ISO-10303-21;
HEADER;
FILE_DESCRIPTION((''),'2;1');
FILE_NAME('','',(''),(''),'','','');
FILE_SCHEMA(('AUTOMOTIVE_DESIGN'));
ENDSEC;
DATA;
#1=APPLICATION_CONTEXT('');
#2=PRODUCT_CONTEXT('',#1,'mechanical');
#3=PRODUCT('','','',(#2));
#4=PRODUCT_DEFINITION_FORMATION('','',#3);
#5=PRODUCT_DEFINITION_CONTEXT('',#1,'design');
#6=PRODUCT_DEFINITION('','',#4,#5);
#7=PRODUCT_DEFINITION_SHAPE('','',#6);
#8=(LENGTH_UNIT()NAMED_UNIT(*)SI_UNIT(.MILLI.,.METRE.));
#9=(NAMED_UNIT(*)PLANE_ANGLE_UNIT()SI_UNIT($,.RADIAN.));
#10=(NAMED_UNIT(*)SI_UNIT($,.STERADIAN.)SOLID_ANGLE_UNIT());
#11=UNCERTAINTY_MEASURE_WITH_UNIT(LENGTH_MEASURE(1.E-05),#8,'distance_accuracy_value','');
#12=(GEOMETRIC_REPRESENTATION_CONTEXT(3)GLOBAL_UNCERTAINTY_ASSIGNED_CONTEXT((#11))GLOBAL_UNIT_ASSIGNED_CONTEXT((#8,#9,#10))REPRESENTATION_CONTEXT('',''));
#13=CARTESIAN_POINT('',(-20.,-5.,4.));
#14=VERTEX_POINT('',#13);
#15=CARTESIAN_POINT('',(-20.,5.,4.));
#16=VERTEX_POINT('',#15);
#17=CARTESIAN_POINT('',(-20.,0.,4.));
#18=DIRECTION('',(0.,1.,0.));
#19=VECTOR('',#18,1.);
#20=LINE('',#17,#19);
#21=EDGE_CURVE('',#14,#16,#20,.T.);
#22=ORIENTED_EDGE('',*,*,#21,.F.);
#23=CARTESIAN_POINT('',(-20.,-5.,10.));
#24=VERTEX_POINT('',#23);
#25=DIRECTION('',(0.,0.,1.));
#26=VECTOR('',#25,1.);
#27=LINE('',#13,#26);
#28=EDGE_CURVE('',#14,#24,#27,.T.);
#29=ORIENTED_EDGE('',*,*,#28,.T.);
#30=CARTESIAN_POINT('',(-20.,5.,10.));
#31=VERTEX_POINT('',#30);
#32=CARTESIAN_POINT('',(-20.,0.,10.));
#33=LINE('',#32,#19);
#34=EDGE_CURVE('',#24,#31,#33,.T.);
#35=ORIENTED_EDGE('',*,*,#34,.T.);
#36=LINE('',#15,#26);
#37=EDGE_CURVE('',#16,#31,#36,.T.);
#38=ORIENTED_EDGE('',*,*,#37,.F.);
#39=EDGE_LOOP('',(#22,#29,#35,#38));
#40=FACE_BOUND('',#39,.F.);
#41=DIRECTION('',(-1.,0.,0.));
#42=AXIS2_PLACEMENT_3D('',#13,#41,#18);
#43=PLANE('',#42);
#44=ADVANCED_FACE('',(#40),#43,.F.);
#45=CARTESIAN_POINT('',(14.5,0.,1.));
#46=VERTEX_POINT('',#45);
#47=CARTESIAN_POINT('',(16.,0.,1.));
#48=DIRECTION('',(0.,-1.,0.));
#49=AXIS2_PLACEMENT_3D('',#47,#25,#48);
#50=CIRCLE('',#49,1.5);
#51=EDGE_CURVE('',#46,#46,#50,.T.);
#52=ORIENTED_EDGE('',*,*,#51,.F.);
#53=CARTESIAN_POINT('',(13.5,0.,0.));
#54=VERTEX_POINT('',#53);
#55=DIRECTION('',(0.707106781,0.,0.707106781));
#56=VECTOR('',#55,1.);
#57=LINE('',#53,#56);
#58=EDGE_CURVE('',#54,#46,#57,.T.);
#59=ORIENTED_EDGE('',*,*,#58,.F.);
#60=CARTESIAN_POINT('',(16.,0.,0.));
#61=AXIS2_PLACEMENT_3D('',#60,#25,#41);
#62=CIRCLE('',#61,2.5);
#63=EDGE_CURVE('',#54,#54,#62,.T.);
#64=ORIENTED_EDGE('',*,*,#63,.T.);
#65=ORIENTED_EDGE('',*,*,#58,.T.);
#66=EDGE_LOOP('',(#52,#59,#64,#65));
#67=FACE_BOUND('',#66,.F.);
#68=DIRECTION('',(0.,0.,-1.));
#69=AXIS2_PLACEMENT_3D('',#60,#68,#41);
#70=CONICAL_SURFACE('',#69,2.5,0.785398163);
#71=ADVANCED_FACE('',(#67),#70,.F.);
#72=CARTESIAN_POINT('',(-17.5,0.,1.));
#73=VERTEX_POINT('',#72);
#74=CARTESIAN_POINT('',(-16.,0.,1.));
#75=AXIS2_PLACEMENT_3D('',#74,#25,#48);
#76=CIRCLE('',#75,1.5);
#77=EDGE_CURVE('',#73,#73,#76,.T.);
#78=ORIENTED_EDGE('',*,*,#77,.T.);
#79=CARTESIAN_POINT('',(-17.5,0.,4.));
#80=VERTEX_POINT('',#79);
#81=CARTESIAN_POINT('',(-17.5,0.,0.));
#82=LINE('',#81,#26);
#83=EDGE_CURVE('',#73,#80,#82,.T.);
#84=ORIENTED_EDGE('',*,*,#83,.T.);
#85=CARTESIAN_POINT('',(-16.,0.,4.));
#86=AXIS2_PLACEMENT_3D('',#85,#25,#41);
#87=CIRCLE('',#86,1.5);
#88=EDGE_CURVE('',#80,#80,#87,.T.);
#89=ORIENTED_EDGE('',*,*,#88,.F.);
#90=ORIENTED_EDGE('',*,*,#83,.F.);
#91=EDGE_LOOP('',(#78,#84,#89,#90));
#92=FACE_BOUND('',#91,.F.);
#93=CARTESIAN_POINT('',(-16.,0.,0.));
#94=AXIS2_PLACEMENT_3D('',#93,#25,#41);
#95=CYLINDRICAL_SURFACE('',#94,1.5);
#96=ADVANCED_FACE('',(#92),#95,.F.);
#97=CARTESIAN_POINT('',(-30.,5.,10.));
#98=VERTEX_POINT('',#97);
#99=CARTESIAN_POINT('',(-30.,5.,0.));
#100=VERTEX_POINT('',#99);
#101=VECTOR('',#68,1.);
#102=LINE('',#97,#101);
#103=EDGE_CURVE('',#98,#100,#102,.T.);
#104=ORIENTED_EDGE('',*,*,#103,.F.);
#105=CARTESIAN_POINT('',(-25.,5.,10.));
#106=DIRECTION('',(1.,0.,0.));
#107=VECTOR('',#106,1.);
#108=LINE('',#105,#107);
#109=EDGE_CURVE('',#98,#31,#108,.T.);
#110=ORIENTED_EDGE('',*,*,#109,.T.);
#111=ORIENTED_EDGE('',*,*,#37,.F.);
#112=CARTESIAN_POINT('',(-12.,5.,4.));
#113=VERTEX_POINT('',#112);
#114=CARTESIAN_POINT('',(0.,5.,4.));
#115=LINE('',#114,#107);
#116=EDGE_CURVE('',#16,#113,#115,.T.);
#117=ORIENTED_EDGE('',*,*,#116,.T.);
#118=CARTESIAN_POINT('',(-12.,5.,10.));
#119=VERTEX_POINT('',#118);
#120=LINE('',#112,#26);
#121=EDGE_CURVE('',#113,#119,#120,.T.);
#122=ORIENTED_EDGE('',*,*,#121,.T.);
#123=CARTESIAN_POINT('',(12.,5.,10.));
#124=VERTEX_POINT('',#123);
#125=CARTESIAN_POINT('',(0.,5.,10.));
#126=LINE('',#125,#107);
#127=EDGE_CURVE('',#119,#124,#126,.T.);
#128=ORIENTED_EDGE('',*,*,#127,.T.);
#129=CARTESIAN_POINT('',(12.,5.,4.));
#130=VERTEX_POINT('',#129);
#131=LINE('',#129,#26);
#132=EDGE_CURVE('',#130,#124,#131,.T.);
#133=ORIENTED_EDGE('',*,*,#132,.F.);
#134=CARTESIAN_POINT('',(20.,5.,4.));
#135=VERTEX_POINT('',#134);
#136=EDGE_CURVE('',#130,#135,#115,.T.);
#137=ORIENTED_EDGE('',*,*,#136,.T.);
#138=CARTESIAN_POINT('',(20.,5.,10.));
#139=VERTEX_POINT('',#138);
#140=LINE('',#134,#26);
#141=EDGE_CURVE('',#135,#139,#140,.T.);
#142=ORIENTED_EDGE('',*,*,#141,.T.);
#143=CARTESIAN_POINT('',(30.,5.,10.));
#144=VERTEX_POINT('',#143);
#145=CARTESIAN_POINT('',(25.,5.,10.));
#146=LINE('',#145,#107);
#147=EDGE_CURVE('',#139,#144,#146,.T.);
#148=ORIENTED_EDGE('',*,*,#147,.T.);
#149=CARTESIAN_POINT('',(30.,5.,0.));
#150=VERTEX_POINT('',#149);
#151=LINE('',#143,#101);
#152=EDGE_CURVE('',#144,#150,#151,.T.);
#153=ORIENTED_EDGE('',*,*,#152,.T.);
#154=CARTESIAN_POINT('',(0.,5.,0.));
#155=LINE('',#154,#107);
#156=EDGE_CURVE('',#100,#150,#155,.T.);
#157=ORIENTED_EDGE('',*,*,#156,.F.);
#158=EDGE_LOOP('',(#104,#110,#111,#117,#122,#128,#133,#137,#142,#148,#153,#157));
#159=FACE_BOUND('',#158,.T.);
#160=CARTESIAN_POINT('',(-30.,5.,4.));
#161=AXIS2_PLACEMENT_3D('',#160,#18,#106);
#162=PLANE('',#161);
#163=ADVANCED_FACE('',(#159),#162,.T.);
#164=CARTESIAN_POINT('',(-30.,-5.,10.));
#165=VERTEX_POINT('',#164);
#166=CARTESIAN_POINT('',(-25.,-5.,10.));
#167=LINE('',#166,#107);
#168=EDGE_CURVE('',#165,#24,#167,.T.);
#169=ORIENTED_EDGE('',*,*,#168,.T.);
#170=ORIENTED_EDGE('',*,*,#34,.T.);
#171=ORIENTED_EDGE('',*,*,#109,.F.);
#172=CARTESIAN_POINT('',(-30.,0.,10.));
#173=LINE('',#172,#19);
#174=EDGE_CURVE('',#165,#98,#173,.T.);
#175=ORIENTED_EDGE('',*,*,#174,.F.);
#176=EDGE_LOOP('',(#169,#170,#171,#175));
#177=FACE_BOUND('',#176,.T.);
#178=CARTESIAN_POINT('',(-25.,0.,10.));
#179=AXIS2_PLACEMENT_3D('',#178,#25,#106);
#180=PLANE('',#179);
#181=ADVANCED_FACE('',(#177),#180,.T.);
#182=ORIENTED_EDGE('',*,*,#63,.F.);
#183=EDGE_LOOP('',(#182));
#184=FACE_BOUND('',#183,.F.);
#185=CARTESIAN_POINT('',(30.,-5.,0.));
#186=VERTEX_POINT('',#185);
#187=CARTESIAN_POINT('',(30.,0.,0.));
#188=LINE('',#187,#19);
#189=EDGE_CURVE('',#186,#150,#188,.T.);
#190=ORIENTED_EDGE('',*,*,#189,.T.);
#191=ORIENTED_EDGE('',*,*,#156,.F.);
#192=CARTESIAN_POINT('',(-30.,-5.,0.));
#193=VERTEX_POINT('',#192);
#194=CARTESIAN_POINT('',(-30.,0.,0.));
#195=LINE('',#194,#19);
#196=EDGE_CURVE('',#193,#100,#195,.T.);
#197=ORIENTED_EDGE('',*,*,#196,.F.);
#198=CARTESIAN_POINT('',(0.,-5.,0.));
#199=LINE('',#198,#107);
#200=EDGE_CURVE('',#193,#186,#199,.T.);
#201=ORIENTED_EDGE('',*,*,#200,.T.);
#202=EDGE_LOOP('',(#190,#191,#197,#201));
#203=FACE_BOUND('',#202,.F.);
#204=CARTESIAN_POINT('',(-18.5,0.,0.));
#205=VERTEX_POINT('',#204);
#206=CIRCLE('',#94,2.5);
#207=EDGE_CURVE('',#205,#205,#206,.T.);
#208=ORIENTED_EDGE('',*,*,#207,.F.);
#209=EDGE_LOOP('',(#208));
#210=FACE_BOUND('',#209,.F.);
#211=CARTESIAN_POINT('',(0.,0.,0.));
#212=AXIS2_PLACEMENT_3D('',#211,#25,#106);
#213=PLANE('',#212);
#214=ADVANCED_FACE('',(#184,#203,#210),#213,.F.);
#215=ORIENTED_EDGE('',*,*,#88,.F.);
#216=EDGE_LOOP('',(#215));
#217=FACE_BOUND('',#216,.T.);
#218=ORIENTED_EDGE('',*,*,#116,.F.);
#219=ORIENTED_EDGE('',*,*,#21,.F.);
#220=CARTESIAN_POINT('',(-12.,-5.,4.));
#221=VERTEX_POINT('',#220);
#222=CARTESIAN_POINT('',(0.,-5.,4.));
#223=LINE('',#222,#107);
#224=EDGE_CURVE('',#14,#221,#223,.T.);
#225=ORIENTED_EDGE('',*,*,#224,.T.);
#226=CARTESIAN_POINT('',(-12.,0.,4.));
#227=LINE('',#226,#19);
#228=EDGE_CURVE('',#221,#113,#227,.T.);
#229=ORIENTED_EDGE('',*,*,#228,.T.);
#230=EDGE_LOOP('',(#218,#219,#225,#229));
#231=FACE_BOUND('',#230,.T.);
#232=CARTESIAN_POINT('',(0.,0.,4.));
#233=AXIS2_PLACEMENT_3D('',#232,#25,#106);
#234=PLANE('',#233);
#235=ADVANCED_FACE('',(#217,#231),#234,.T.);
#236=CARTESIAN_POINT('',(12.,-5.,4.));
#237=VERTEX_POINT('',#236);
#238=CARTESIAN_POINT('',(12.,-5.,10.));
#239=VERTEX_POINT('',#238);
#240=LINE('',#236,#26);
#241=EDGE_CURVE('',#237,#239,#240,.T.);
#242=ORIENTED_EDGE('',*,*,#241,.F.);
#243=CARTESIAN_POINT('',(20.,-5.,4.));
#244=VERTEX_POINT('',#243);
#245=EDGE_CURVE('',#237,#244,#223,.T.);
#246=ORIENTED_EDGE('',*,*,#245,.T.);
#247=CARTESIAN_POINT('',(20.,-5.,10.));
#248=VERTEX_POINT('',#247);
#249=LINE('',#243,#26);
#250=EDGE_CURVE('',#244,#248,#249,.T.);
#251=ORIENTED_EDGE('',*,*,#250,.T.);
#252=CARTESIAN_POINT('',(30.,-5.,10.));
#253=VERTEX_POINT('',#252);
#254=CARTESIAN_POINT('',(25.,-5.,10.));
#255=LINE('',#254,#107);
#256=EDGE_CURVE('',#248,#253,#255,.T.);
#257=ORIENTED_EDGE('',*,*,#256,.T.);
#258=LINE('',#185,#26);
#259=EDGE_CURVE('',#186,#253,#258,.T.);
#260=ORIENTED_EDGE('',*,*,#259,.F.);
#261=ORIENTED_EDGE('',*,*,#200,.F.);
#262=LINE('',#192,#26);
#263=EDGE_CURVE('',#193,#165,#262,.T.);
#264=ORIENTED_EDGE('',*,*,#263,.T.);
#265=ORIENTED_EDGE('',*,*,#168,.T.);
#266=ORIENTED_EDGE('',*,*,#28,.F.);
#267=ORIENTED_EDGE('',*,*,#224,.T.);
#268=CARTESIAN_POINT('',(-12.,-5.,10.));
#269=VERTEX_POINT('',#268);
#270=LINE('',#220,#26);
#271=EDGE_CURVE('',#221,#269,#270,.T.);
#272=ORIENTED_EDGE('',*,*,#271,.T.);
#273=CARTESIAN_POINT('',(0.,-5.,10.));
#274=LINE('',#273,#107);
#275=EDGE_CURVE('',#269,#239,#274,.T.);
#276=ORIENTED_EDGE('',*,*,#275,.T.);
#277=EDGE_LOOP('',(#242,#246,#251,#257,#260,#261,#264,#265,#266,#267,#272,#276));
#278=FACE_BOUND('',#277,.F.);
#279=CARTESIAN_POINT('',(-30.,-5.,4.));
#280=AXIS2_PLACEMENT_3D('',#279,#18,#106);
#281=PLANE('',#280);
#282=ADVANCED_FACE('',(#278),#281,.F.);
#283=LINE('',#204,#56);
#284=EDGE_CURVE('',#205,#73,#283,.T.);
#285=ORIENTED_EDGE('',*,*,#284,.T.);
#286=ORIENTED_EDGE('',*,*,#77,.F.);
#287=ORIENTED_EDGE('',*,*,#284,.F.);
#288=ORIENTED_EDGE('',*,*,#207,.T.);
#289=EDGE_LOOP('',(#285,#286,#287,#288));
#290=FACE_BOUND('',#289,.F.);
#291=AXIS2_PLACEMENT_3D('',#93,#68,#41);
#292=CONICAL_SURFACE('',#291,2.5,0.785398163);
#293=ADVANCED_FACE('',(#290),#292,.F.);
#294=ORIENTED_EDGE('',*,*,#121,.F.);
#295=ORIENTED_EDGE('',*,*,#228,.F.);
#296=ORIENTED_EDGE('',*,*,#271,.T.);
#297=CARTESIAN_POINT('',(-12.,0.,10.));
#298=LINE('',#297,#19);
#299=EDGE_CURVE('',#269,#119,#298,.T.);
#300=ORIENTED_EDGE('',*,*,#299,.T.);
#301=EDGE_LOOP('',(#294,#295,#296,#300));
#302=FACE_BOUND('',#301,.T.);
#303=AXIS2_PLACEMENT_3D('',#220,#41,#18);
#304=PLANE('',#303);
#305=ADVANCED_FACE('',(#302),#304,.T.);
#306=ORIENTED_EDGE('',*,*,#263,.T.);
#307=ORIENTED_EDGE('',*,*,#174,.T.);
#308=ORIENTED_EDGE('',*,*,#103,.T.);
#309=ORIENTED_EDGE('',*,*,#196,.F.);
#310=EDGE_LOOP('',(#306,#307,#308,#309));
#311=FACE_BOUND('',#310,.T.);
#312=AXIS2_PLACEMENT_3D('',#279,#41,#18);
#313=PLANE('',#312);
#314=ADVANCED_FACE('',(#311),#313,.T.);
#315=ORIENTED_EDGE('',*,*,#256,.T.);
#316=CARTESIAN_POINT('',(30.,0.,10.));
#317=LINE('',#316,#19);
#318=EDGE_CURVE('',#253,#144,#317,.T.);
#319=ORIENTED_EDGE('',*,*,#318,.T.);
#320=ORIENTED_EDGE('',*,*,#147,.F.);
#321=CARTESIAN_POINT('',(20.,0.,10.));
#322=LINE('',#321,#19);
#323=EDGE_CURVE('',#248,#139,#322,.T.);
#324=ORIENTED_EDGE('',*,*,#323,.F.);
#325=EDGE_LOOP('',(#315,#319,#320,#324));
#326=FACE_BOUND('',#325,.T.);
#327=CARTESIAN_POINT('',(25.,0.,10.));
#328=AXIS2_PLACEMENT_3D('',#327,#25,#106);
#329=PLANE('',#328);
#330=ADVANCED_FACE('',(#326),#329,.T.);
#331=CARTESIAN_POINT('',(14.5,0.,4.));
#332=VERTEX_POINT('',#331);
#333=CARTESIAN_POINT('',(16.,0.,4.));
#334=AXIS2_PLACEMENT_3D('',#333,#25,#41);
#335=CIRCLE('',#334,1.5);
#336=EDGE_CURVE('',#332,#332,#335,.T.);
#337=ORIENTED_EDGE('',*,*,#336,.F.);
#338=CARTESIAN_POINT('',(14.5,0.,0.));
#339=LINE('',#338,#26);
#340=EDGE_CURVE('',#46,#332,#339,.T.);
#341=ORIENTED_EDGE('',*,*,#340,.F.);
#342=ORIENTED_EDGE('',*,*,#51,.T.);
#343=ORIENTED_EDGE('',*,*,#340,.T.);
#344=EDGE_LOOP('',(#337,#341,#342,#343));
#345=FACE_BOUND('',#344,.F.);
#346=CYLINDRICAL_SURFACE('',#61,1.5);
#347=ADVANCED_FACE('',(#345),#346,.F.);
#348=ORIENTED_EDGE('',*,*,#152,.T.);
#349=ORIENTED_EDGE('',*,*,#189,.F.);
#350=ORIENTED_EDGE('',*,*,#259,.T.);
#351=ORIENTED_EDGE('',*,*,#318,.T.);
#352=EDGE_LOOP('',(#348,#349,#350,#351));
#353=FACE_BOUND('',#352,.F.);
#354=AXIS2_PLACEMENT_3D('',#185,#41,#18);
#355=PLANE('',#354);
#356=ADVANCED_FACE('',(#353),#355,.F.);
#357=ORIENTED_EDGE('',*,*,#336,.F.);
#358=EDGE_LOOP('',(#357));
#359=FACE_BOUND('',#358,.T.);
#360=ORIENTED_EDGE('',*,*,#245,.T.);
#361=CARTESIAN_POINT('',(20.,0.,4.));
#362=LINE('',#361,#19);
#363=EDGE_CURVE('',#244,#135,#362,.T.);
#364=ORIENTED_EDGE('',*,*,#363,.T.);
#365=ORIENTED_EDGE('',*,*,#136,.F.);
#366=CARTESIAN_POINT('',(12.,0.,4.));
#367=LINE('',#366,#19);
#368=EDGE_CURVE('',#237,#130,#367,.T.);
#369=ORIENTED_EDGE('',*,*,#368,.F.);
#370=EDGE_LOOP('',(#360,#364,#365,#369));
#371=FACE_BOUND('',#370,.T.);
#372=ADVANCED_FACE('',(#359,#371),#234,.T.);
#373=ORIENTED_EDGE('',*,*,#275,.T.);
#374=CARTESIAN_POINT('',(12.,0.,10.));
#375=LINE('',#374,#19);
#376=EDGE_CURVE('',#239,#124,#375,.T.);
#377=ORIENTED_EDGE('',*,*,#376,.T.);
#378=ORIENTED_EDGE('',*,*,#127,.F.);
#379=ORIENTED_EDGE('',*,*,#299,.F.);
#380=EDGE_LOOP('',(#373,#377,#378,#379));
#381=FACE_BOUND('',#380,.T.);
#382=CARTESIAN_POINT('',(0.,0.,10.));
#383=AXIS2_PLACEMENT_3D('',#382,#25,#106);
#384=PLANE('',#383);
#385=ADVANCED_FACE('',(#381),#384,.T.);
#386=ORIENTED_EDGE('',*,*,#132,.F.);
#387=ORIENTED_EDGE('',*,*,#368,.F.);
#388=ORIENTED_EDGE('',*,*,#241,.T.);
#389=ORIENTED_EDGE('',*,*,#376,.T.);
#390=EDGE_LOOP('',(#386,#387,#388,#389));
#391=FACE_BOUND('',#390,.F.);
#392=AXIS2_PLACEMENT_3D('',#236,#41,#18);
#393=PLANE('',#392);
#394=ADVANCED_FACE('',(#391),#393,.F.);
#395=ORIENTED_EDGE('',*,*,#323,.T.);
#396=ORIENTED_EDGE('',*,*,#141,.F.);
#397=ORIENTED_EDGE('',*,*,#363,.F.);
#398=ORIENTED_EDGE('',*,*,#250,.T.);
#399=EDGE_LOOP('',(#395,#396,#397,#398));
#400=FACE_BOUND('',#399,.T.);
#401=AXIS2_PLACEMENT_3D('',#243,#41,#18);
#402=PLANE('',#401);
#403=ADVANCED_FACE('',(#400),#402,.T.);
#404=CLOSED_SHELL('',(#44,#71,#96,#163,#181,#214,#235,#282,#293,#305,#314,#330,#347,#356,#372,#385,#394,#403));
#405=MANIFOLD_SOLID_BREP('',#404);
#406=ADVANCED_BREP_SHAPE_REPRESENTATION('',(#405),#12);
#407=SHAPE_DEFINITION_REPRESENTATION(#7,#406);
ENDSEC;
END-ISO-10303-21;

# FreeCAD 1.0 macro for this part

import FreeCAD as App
import Part
import Sketcher
from FreeCAD import Vector
Q = App.Units.Quantity

doc = App.newDocument("Part")
params = doc.addObject("Spreadsheet::Sheet", "Params")
for row, (alias, value) in enumerate([
    ("sketch1_width", "60 mm"),
    ("sketch1_height", "10 mm"),
    ("pad1_length", "4 mm"),
    ("sketch2_width", "10 mm"),
    ("sketch2_width2", "24 mm"),
    ("pad2_length", "6 mm"),
    ("sketch3_diameter", "3 mm"),
    ("hole_diameter", "3 mm"),
    ("hole_csink_diameter", "5 mm"),
], start=1):
    params.set(f"A{row}", alias)
    params.set(f"B{row}", "=" + value)
    params.setAlias(f"B{row}", alias)

body = doc.addObject("PartDesign::Body", "Body")

sketch1 = body.newObject("Sketcher::SketchObject", "Sketch")
sketch1.AttachmentSupport = (doc.getObject("XY_Plane"), [""])
sketch1.MapMode = "FlatFace"
sketch1.addGeometry([
    Part.LineSegment(Vector(-30, 5, 0), Vector(-30, -5, 0)),
    Part.LineSegment(Vector(-30, -5, 0), Vector(30, -5, 0)),
    Part.LineSegment(Vector(30, -5, 0), Vector(30, 5, 0)),
    Part.LineSegment(Vector(30, 5, 0), Vector(-30, 5, 0)),
], False)
sketch1.addConstraint([
    Sketcher.Constraint("Coincident", 0, 2, 1, 1),
    Sketcher.Constraint("Coincident", 1, 2, 2, 1),
    Sketcher.Constraint("Coincident", 2, 2, 3, 1),
    Sketcher.Constraint("Coincident", 3, 2, 0, 1),
    Sketcher.Constraint("Vertical", 0),
    Sketcher.Constraint("Horizontal", 1),
    Sketcher.Constraint("Vertical", 2),
    Sketcher.Constraint("Horizontal", 3),
    Sketcher.Constraint("Symmetric", 0, 2, 2, 2, -1, 1),
    Sketcher.Constraint("DistanceX", 1, 1, 1, 2, Q("60 mm")),
    Sketcher.Constraint("DistanceY", 0, 2, 0, 1, Q("10 mm")),
])
sketch1.setExpression("Constraints[9]", "Params.sketch1_width")
sketch1.setExpression("Constraints[10]", "Params.sketch1_height")
pad1 = body.newObject("PartDesign::Pad", "Pad")
pad1.Profile = sketch1
pad1.setExpression("Length", "Params.pad1_length")

sketch2 = body.newObject("Sketcher::SketchObject", "Sketch001")
sketch2.AttachmentSupport = (doc.getObject("XY_Plane"), [""])
sketch2.MapMode = "FlatFace"
sketch2.AttachmentOffset = App.Placement(Vector(0, 0, 4), App.Rotation())
sketch2.addGeometry([
    Part.LineSegment(Vector(-30, 5, 0), Vector(-30, -5, 0)),
    Part.LineSegment(Vector(-30, -5, 0), Vector(-20, -5, 0)),
    Part.LineSegment(Vector(-20, -5, 0), Vector(-20, 5, 0)),
    Part.LineSegment(Vector(-20, 5, 0), Vector(-30, 5, 0)),
    Part.LineSegment(Vector(-12, 5, 0), Vector(-12, -5, 0)),
    Part.LineSegment(Vector(-12, -5, 0), Vector(12, -5, 0)),
    Part.LineSegment(Vector(12, -5, 0), Vector(12, 5, 0)),
    Part.LineSegment(Vector(12, 5, 0), Vector(-12, 5, 0)),
    Part.LineSegment(Vector(20, 5, 0), Vector(20, -5, 0)),
    Part.LineSegment(Vector(20, -5, 0), Vector(30, -5, 0)),
    Part.LineSegment(Vector(30, -5, 0), Vector(30, 5, 0)),
    Part.LineSegment(Vector(30, 5, 0), Vector(20, 5, 0)),
], False)
sketch2.addConstraint([
    Sketcher.Constraint("Coincident", 0, 2, 1, 1),
    Sketcher.Constraint("Coincident", 1, 2, 2, 1),
    Sketcher.Constraint("Coincident", 2, 2, 3, 1),
    Sketcher.Constraint("Coincident", 3, 2, 0, 1),
    Sketcher.Constraint("Coincident", 4, 2, 5, 1),
    Sketcher.Constraint("Coincident", 5, 2, 6, 1),
    Sketcher.Constraint("Coincident", 6, 2, 7, 1),
    Sketcher.Constraint("Coincident", 7, 2, 4, 1),
    Sketcher.Constraint("Coincident", 8, 2, 9, 1),
    Sketcher.Constraint("Coincident", 9, 2, 10, 1),
    Sketcher.Constraint("Coincident", 10, 2, 11, 1),
    Sketcher.Constraint("Coincident", 11, 2, 8, 1),
    Sketcher.Constraint("Vertical", 0),
    Sketcher.Constraint("Horizontal", 1),
    Sketcher.Constraint("Vertical", 2),
    Sketcher.Constraint("Horizontal", 3),
    Sketcher.Constraint("Vertical", 4),
    Sketcher.Constraint("Horizontal", 5),
    Sketcher.Constraint("Vertical", 6),
    Sketcher.Constraint("Horizontal", 7),
    Sketcher.Constraint("Vertical", 8),
    Sketcher.Constraint("Horizontal", 9),
    Sketcher.Constraint("Vertical", 10),
    Sketcher.Constraint("Horizontal", 11),
    Sketcher.Constraint("Symmetric", 4, 2, 6, 2, -1, 1),
    Sketcher.Constraint("Symmetric", 2, 2, 8, 2, -1, 1),
    Sketcher.Constraint("Symmetric", 0, 2, 10, 2, -1, 1),
    Sketcher.Constraint("Horizontal", 1, 2, 4, 2),
    Sketcher.Constraint("Horizontal", 3, 2, 6, 2),
    Sketcher.Constraint("Equal", 11, 0),
    Sketcher.Constraint("DistanceX", 1, 1, 1, 2, Q("10 mm")),
    Sketcher.Constraint("DistanceX", 5, 1, 5, 2, Q("24 mm")),
    Sketcher.Constraint("DistanceX", 0, 2, -1, 1, Q("30 mm")),
])
sketch2.setExpression("Constraints[30]", "Params.sketch2_width")
sketch2.setExpression("Constraints[31]", "Params.sketch2_width2")
pad2 = body.newObject("PartDesign::Pad", "Pad001")
pad2.Profile = sketch2
pad2.setExpression("Length", "Params.pad2_length")

sketch3 = body.newObject("Sketcher::SketchObject", "Sketch002")
sketch3.AttachmentSupport = (doc.getObject("XY_Plane"), [""])
sketch3.MapMode = "FlatFace"
sketch3.addGeometry([
    Part.Circle(Vector(-16, 0, 0), Vector(0, 0, 1), 1.5),
    Part.Circle(Vector(16, 0, 0), Vector(0, 0, 1), 1.5),
], False)
sketch3.addConstraint([
    Sketcher.Constraint("Equal", 0, 1),
    Sketcher.Constraint("Symmetric", 0, 3, 1, 3, -1, 1),
    Sketcher.Constraint("PointOnObject", 0, 3, -1),
    Sketcher.Constraint("Diameter", 0, Q("3 mm")),
    Sketcher.Constraint("DistanceX", 0, 3, -1, 1, Q("16 mm")),
])
sketch3.setExpression("Constraints[3]", "Params.sketch3_diameter")
doc.recompute()
hole = body.newObject("PartDesign::Hole", "Hole")
hole.Profile = sketch3
hole.ThreadType = "None"
hole.setExpression("Diameter", "Params.hole_diameter")
hole.DepthType = "ThroughAll"
hole.HoleCutType = "Countersink"
hole.setExpression("HoleCutDiameter", "Params.hole_csink_diameter")
hole.HoleCutCountersinkAngle = 90
hole.Reversed = True

doc.recompute()
